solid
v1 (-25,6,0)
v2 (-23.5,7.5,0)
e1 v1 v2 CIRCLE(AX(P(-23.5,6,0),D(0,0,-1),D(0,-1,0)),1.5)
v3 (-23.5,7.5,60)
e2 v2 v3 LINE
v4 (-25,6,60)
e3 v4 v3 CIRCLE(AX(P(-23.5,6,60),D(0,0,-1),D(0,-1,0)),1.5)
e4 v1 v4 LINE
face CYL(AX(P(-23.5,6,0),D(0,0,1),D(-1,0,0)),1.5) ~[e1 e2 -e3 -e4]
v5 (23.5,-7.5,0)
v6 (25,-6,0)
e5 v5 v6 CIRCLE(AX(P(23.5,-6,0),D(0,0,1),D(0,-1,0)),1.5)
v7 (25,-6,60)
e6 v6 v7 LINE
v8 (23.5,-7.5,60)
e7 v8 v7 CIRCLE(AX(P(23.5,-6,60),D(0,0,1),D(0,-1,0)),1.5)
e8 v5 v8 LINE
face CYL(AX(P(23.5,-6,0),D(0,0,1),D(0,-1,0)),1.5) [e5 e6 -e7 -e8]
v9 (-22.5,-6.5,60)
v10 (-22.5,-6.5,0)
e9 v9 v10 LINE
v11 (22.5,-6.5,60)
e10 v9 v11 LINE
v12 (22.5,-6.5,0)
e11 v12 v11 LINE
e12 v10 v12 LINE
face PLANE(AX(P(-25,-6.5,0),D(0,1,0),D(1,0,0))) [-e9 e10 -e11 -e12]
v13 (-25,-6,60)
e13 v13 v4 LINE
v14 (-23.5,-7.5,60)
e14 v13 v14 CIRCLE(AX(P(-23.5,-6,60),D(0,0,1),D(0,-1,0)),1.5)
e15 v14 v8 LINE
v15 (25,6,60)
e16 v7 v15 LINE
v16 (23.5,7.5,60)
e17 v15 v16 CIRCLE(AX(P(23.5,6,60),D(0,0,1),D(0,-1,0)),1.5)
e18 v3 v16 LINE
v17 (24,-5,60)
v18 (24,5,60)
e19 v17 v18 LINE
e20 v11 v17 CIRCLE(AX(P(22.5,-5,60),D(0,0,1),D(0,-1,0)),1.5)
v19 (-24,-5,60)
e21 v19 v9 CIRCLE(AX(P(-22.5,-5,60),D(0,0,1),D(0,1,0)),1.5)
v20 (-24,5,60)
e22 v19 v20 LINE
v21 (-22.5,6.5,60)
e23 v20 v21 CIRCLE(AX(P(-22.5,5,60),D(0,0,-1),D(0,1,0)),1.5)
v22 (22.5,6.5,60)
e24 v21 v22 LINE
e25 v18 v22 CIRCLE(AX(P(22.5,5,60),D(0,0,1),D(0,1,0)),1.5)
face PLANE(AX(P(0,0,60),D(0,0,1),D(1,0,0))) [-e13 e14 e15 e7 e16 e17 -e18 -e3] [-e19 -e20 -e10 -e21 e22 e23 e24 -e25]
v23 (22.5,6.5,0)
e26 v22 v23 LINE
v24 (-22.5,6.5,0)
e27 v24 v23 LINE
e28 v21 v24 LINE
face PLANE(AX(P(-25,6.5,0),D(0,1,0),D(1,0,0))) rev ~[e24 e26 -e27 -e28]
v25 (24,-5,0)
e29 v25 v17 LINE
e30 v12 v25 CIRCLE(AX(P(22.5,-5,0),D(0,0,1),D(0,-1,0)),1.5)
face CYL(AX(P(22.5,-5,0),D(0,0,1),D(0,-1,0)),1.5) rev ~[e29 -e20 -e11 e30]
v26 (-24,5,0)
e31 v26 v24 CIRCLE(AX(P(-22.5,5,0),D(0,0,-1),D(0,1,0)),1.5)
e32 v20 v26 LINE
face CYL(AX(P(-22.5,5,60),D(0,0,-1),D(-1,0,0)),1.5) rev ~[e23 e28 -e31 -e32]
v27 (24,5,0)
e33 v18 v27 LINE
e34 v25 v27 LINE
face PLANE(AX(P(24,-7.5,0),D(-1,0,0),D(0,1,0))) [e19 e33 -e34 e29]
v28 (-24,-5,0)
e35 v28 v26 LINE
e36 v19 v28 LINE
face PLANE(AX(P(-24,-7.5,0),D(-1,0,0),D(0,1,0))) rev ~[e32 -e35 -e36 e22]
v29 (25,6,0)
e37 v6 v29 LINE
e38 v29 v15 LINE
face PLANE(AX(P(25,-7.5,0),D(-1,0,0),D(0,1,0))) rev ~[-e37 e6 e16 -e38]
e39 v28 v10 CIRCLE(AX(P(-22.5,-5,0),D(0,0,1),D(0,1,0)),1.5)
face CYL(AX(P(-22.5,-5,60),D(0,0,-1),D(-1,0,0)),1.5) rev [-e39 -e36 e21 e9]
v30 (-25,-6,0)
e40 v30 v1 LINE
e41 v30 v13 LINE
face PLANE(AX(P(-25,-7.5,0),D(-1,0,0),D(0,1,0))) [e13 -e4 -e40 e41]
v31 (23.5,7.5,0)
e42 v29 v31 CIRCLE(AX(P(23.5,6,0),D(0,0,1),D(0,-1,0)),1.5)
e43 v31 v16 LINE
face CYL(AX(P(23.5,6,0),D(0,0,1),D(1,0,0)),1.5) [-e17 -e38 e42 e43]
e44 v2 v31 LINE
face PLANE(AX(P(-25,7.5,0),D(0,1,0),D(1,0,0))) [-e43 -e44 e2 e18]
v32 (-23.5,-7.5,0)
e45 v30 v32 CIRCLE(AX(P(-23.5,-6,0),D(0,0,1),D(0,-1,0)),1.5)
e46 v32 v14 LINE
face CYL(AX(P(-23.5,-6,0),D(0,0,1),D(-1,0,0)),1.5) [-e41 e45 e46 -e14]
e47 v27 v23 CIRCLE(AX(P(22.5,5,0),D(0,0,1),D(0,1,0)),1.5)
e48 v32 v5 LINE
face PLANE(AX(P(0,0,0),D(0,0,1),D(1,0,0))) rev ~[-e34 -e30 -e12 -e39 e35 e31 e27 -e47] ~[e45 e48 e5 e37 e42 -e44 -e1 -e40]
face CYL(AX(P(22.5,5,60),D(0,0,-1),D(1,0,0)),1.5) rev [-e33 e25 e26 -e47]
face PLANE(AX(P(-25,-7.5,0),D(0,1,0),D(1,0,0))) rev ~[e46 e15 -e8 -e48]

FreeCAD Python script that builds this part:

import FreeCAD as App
import Part
import Sketcher

V = App.Vector


def edges_at(feature, points):
    """Names of the edges that pass closest to the given points."""
    edges = feature.Shape.Edges
    near = lambda p: min(range(len(edges)), key=lambda i: edges[i].distToShape(Part.Vertex(*p))[0])
    return sorted({f"Edge{near(p) + 1}" for p in points})


def faces_at(feature, points):
    """Names of the faces that lie closest to the given points."""
    faces = feature.Shape.Faces
    near = lambda p: min(range(len(faces)), key=lambda i: faces[i].distToShape(Part.Vertex(*p))[0])
    return sorted({f"Face{near(p) + 1}" for p in points})

doc = App.newDocument("Part")
body = doc.addObject("PartDesign::Body", "Body")

sketch1 = body.newObject("Sketcher::SketchObject", "Sketch")
sketch1.AttachmentSupport = (doc.getObject("XY_Plane"), [""])
sketch1.MapMode = "FlatFace"
sketch1.addGeometry([
    Part.LineSegment(V(-25, 7.5, 0), V(-25, -7.5, 0)),
    Part.LineSegment(V(-25, -7.5, 0), V(25, -7.5, 0)),
    Part.LineSegment(V(25, -7.5, 0), V(25, 7.5, 0)),
    Part.LineSegment(V(25, 7.5, 0), V(-25, 7.5, 0)),
], False)
sketch1.addConstraint([
    Sketcher.Constraint("Coincident", 0, 2, 1, 1),
    Sketcher.Constraint("Coincident", 1, 2, 2, 1),
    Sketcher.Constraint("Coincident", 2, 2, 3, 1),
    Sketcher.Constraint("Coincident", 3, 2, 0, 1),
    Sketcher.Constraint("Vertical", 0),
    Sketcher.Constraint("Horizontal", 1),
    Sketcher.Constraint("Vertical", 2),
    Sketcher.Constraint("Horizontal", 3),
    Sketcher.Constraint("Symmetric", 0, 2, 2, 2, -1, 1),
    Sketcher.Constraint("DistanceX", 1, 1, 1, 2, 50.0),
    Sketcher.Constraint("DistanceY", 0, 2, 0, 1, 15.0),
])
pad1 = body.newObject("PartDesign::Pad", "Pad")
pad1.Profile = sketch1
pad1.Length = 60
doc.recompute()

thickness = body.newObject("PartDesign::Thickness", "Thickness")
thickness.Base = (pad1, faces_at(pad1, [(0, 0, 60), (0, 0, 0)]))
thickness.Value = 1
thickness.Reversed = True
thickness.Join = "Arc"
doc.recompute()

fillet = body.newObject("PartDesign::Fillet", "Fillet")
fillet.Base = (thickness, edges_at(thickness, [
    (25, 7.5, 30),
    (25, -7.5, 30),
    (-25, 7.5, 30),
    (-25, -7.5, 30),
    (-24, -6.5, 30),
    (24, -6.5, 30),
    (-24, 6.5, 30),
    (24, 6.5, 30),
]))
fillet.Radius = 1.5

doc.recompute()
